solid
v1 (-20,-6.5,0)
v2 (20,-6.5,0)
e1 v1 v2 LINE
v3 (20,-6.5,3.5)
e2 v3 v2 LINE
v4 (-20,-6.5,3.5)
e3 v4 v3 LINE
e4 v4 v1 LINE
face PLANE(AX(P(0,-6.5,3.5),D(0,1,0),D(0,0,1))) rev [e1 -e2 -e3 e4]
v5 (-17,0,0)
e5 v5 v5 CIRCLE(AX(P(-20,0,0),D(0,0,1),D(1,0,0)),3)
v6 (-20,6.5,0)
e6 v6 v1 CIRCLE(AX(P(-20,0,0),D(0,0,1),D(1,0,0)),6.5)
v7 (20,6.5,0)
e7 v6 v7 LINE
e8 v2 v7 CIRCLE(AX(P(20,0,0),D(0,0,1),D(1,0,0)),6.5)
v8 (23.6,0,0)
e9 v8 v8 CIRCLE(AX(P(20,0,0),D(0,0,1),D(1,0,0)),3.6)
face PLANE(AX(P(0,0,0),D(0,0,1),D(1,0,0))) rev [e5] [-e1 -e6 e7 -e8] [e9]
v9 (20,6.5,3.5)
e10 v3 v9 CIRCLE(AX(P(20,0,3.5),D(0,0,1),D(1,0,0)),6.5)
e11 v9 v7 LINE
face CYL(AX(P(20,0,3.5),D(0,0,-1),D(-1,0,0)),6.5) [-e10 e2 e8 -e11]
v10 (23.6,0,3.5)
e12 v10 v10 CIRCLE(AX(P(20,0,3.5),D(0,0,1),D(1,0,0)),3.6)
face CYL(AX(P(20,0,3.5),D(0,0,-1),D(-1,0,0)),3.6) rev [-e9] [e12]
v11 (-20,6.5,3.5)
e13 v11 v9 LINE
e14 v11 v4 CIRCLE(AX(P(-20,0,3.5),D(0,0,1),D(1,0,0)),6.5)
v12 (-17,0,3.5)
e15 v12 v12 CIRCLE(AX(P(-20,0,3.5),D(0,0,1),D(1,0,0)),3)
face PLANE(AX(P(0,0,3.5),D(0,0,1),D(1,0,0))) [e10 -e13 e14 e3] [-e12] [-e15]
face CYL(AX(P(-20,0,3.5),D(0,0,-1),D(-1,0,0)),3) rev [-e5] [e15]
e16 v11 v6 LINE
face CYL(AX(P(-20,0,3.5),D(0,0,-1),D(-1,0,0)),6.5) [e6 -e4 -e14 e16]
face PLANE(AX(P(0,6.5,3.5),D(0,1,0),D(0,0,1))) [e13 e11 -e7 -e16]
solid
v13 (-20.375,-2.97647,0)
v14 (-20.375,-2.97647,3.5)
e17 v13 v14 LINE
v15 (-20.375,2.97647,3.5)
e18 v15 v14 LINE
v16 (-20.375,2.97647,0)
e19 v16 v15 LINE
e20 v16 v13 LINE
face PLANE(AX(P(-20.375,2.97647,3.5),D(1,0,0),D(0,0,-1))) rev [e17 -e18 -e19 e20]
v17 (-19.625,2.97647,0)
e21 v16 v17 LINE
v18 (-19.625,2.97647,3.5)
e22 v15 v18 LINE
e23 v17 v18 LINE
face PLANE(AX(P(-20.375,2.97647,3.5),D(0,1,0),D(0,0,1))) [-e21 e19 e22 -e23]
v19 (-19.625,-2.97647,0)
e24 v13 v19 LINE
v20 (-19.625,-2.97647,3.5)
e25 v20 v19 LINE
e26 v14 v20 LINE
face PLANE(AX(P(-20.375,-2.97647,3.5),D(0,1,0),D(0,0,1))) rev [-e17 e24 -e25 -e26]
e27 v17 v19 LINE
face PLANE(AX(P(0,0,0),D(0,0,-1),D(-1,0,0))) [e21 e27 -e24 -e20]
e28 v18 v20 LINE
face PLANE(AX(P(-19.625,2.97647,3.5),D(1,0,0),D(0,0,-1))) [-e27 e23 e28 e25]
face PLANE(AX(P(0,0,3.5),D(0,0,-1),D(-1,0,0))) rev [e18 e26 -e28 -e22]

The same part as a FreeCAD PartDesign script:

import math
import FreeCAD as App
import Part
import Sketcher

doc = App.newDocument("Part")
body = doc.addObject("PartDesign::Body", "Body")

# Sketch on XY plane
sketch1 = doc.addObject("Sketcher::SketchObject", "Sketch")
body.addObject(sketch1)
sketch1.AttachmentSupport = (doc.XY_Plane, [""])
sketch1.MapMode = "FlatFace"
sketch1.addGeometry([
    Part.LineSegment(App.Vector(-20, -6.5, 0), App.Vector(20, -6.5, 0)),  # 0
    Part.ArcOfCircle(Part.Circle(App.Vector(20, 0, 0), App.Vector(0, 0, 1), 6.5), math.radians(-90), math.radians(90)),  # 1
    Part.LineSegment(App.Vector(20, 6.5, 0), App.Vector(-20, 6.5, 0)),  # 2
    Part.ArcOfCircle(Part.Circle(App.Vector(-20, 0, 0), App.Vector(0, 0, 1), 6.5), math.radians(90), math.radians(270)),  # 3
    Part.Circle(App.Vector(-20, 0, 0), App.Vector(0, 0, 1), 3),  # 4
    Part.Circle(App.Vector(20, 0, 0), App.Vector(0, 0, 1), 3.6),  # 5
], False)
sketch1.addConstraint([
    Sketcher.Constraint("Tangent", 0, 2, 1, 1),
    Sketcher.Constraint("Tangent", 1, 2, 2, 1),
    Sketcher.Constraint("Tangent", 2, 2, 3, 1),
    Sketcher.Constraint("Tangent", 3, 2, 0, 1),
    Sketcher.Constraint("Horizontal", 0),
    Sketcher.Constraint("Horizontal", 2),
    Sketcher.Constraint("Coincident", 4, 3, 3, 3),
    Sketcher.Constraint("Coincident", 5, 3, 1, 3),
    Sketcher.Constraint("Symmetric", 1, 3, 3, 3, -1, 1),
    Sketcher.Constraint("Diameter", 4, 6.0),
    Sketcher.Constraint("Diameter", 5, 7.2),
    Sketcher.Constraint("Radius", 1, 6.5),
    Sketcher.Constraint("DistanceX", 0, 1, 0, 2, 40.0),
])
pad1 = doc.addObject("PartDesign::Pad", "Pad")
body.addObject(pad1)
pad1.Profile = sketch1
pad1.Length = 3.5
body2 = doc.addObject("PartDesign::Body", "Body001")

# Sketch on XY plane
sketch2 = doc.addObject("Sketcher::SketchObject", "Sketch001")
body2.addObject(sketch2)
sketch2.AttachmentSupport = (doc.getObject("XY_Plane001"), [""])
sketch2.MapMode = "FlatFace"
sketch2.addGeometry([
    Part.LineSegment(App.Vector(-20.4, 3, 0), App.Vector(-20.4, -3, 0)),
    Part.LineSegment(App.Vector(-20.4, -3, 0), App.Vector(-19.6, -3, 0)),
    Part.LineSegment(App.Vector(-19.6, -3, 0), App.Vector(-19.6, 3, 0)),
    Part.LineSegment(App.Vector(-19.6, 3, 0), App.Vector(-20.4, 3, 0)),
], False)
sketch2.addConstraint([
    Sketcher.Constraint("Coincident", 0, 2, 1, 1),
    Sketcher.Constraint("Coincident", 1, 2, 2, 1),
    Sketcher.Constraint("Coincident", 2, 2, 3, 1),
    Sketcher.Constraint("Coincident", 3, 2, 0, 1),
    Sketcher.Constraint("Vertical", 0),
    Sketcher.Constraint("Horizontal", 1),
    Sketcher.Constraint("Vertical", 2),
    Sketcher.Constraint("Horizontal", 3),
    Sketcher.Constraint("DistanceX", 1, 1, 1, 2, 0.75),
    Sketcher.Constraint("DistanceX", 0, 2, -1, 1, 20.375),
    Sketcher.Constraint("DistanceY", 0, 2, 0, 1, 5.95294),
    Sketcher.Constraint("DistanceY", 0, 2, -1, 1, 2.97647),
])
pad2 = doc.addObject("PartDesign::Pad", "Pad001")
body2.addObject(pad2)
pad2.Profile = sketch2
pad2.Length = 3.5

doc.recompute()
